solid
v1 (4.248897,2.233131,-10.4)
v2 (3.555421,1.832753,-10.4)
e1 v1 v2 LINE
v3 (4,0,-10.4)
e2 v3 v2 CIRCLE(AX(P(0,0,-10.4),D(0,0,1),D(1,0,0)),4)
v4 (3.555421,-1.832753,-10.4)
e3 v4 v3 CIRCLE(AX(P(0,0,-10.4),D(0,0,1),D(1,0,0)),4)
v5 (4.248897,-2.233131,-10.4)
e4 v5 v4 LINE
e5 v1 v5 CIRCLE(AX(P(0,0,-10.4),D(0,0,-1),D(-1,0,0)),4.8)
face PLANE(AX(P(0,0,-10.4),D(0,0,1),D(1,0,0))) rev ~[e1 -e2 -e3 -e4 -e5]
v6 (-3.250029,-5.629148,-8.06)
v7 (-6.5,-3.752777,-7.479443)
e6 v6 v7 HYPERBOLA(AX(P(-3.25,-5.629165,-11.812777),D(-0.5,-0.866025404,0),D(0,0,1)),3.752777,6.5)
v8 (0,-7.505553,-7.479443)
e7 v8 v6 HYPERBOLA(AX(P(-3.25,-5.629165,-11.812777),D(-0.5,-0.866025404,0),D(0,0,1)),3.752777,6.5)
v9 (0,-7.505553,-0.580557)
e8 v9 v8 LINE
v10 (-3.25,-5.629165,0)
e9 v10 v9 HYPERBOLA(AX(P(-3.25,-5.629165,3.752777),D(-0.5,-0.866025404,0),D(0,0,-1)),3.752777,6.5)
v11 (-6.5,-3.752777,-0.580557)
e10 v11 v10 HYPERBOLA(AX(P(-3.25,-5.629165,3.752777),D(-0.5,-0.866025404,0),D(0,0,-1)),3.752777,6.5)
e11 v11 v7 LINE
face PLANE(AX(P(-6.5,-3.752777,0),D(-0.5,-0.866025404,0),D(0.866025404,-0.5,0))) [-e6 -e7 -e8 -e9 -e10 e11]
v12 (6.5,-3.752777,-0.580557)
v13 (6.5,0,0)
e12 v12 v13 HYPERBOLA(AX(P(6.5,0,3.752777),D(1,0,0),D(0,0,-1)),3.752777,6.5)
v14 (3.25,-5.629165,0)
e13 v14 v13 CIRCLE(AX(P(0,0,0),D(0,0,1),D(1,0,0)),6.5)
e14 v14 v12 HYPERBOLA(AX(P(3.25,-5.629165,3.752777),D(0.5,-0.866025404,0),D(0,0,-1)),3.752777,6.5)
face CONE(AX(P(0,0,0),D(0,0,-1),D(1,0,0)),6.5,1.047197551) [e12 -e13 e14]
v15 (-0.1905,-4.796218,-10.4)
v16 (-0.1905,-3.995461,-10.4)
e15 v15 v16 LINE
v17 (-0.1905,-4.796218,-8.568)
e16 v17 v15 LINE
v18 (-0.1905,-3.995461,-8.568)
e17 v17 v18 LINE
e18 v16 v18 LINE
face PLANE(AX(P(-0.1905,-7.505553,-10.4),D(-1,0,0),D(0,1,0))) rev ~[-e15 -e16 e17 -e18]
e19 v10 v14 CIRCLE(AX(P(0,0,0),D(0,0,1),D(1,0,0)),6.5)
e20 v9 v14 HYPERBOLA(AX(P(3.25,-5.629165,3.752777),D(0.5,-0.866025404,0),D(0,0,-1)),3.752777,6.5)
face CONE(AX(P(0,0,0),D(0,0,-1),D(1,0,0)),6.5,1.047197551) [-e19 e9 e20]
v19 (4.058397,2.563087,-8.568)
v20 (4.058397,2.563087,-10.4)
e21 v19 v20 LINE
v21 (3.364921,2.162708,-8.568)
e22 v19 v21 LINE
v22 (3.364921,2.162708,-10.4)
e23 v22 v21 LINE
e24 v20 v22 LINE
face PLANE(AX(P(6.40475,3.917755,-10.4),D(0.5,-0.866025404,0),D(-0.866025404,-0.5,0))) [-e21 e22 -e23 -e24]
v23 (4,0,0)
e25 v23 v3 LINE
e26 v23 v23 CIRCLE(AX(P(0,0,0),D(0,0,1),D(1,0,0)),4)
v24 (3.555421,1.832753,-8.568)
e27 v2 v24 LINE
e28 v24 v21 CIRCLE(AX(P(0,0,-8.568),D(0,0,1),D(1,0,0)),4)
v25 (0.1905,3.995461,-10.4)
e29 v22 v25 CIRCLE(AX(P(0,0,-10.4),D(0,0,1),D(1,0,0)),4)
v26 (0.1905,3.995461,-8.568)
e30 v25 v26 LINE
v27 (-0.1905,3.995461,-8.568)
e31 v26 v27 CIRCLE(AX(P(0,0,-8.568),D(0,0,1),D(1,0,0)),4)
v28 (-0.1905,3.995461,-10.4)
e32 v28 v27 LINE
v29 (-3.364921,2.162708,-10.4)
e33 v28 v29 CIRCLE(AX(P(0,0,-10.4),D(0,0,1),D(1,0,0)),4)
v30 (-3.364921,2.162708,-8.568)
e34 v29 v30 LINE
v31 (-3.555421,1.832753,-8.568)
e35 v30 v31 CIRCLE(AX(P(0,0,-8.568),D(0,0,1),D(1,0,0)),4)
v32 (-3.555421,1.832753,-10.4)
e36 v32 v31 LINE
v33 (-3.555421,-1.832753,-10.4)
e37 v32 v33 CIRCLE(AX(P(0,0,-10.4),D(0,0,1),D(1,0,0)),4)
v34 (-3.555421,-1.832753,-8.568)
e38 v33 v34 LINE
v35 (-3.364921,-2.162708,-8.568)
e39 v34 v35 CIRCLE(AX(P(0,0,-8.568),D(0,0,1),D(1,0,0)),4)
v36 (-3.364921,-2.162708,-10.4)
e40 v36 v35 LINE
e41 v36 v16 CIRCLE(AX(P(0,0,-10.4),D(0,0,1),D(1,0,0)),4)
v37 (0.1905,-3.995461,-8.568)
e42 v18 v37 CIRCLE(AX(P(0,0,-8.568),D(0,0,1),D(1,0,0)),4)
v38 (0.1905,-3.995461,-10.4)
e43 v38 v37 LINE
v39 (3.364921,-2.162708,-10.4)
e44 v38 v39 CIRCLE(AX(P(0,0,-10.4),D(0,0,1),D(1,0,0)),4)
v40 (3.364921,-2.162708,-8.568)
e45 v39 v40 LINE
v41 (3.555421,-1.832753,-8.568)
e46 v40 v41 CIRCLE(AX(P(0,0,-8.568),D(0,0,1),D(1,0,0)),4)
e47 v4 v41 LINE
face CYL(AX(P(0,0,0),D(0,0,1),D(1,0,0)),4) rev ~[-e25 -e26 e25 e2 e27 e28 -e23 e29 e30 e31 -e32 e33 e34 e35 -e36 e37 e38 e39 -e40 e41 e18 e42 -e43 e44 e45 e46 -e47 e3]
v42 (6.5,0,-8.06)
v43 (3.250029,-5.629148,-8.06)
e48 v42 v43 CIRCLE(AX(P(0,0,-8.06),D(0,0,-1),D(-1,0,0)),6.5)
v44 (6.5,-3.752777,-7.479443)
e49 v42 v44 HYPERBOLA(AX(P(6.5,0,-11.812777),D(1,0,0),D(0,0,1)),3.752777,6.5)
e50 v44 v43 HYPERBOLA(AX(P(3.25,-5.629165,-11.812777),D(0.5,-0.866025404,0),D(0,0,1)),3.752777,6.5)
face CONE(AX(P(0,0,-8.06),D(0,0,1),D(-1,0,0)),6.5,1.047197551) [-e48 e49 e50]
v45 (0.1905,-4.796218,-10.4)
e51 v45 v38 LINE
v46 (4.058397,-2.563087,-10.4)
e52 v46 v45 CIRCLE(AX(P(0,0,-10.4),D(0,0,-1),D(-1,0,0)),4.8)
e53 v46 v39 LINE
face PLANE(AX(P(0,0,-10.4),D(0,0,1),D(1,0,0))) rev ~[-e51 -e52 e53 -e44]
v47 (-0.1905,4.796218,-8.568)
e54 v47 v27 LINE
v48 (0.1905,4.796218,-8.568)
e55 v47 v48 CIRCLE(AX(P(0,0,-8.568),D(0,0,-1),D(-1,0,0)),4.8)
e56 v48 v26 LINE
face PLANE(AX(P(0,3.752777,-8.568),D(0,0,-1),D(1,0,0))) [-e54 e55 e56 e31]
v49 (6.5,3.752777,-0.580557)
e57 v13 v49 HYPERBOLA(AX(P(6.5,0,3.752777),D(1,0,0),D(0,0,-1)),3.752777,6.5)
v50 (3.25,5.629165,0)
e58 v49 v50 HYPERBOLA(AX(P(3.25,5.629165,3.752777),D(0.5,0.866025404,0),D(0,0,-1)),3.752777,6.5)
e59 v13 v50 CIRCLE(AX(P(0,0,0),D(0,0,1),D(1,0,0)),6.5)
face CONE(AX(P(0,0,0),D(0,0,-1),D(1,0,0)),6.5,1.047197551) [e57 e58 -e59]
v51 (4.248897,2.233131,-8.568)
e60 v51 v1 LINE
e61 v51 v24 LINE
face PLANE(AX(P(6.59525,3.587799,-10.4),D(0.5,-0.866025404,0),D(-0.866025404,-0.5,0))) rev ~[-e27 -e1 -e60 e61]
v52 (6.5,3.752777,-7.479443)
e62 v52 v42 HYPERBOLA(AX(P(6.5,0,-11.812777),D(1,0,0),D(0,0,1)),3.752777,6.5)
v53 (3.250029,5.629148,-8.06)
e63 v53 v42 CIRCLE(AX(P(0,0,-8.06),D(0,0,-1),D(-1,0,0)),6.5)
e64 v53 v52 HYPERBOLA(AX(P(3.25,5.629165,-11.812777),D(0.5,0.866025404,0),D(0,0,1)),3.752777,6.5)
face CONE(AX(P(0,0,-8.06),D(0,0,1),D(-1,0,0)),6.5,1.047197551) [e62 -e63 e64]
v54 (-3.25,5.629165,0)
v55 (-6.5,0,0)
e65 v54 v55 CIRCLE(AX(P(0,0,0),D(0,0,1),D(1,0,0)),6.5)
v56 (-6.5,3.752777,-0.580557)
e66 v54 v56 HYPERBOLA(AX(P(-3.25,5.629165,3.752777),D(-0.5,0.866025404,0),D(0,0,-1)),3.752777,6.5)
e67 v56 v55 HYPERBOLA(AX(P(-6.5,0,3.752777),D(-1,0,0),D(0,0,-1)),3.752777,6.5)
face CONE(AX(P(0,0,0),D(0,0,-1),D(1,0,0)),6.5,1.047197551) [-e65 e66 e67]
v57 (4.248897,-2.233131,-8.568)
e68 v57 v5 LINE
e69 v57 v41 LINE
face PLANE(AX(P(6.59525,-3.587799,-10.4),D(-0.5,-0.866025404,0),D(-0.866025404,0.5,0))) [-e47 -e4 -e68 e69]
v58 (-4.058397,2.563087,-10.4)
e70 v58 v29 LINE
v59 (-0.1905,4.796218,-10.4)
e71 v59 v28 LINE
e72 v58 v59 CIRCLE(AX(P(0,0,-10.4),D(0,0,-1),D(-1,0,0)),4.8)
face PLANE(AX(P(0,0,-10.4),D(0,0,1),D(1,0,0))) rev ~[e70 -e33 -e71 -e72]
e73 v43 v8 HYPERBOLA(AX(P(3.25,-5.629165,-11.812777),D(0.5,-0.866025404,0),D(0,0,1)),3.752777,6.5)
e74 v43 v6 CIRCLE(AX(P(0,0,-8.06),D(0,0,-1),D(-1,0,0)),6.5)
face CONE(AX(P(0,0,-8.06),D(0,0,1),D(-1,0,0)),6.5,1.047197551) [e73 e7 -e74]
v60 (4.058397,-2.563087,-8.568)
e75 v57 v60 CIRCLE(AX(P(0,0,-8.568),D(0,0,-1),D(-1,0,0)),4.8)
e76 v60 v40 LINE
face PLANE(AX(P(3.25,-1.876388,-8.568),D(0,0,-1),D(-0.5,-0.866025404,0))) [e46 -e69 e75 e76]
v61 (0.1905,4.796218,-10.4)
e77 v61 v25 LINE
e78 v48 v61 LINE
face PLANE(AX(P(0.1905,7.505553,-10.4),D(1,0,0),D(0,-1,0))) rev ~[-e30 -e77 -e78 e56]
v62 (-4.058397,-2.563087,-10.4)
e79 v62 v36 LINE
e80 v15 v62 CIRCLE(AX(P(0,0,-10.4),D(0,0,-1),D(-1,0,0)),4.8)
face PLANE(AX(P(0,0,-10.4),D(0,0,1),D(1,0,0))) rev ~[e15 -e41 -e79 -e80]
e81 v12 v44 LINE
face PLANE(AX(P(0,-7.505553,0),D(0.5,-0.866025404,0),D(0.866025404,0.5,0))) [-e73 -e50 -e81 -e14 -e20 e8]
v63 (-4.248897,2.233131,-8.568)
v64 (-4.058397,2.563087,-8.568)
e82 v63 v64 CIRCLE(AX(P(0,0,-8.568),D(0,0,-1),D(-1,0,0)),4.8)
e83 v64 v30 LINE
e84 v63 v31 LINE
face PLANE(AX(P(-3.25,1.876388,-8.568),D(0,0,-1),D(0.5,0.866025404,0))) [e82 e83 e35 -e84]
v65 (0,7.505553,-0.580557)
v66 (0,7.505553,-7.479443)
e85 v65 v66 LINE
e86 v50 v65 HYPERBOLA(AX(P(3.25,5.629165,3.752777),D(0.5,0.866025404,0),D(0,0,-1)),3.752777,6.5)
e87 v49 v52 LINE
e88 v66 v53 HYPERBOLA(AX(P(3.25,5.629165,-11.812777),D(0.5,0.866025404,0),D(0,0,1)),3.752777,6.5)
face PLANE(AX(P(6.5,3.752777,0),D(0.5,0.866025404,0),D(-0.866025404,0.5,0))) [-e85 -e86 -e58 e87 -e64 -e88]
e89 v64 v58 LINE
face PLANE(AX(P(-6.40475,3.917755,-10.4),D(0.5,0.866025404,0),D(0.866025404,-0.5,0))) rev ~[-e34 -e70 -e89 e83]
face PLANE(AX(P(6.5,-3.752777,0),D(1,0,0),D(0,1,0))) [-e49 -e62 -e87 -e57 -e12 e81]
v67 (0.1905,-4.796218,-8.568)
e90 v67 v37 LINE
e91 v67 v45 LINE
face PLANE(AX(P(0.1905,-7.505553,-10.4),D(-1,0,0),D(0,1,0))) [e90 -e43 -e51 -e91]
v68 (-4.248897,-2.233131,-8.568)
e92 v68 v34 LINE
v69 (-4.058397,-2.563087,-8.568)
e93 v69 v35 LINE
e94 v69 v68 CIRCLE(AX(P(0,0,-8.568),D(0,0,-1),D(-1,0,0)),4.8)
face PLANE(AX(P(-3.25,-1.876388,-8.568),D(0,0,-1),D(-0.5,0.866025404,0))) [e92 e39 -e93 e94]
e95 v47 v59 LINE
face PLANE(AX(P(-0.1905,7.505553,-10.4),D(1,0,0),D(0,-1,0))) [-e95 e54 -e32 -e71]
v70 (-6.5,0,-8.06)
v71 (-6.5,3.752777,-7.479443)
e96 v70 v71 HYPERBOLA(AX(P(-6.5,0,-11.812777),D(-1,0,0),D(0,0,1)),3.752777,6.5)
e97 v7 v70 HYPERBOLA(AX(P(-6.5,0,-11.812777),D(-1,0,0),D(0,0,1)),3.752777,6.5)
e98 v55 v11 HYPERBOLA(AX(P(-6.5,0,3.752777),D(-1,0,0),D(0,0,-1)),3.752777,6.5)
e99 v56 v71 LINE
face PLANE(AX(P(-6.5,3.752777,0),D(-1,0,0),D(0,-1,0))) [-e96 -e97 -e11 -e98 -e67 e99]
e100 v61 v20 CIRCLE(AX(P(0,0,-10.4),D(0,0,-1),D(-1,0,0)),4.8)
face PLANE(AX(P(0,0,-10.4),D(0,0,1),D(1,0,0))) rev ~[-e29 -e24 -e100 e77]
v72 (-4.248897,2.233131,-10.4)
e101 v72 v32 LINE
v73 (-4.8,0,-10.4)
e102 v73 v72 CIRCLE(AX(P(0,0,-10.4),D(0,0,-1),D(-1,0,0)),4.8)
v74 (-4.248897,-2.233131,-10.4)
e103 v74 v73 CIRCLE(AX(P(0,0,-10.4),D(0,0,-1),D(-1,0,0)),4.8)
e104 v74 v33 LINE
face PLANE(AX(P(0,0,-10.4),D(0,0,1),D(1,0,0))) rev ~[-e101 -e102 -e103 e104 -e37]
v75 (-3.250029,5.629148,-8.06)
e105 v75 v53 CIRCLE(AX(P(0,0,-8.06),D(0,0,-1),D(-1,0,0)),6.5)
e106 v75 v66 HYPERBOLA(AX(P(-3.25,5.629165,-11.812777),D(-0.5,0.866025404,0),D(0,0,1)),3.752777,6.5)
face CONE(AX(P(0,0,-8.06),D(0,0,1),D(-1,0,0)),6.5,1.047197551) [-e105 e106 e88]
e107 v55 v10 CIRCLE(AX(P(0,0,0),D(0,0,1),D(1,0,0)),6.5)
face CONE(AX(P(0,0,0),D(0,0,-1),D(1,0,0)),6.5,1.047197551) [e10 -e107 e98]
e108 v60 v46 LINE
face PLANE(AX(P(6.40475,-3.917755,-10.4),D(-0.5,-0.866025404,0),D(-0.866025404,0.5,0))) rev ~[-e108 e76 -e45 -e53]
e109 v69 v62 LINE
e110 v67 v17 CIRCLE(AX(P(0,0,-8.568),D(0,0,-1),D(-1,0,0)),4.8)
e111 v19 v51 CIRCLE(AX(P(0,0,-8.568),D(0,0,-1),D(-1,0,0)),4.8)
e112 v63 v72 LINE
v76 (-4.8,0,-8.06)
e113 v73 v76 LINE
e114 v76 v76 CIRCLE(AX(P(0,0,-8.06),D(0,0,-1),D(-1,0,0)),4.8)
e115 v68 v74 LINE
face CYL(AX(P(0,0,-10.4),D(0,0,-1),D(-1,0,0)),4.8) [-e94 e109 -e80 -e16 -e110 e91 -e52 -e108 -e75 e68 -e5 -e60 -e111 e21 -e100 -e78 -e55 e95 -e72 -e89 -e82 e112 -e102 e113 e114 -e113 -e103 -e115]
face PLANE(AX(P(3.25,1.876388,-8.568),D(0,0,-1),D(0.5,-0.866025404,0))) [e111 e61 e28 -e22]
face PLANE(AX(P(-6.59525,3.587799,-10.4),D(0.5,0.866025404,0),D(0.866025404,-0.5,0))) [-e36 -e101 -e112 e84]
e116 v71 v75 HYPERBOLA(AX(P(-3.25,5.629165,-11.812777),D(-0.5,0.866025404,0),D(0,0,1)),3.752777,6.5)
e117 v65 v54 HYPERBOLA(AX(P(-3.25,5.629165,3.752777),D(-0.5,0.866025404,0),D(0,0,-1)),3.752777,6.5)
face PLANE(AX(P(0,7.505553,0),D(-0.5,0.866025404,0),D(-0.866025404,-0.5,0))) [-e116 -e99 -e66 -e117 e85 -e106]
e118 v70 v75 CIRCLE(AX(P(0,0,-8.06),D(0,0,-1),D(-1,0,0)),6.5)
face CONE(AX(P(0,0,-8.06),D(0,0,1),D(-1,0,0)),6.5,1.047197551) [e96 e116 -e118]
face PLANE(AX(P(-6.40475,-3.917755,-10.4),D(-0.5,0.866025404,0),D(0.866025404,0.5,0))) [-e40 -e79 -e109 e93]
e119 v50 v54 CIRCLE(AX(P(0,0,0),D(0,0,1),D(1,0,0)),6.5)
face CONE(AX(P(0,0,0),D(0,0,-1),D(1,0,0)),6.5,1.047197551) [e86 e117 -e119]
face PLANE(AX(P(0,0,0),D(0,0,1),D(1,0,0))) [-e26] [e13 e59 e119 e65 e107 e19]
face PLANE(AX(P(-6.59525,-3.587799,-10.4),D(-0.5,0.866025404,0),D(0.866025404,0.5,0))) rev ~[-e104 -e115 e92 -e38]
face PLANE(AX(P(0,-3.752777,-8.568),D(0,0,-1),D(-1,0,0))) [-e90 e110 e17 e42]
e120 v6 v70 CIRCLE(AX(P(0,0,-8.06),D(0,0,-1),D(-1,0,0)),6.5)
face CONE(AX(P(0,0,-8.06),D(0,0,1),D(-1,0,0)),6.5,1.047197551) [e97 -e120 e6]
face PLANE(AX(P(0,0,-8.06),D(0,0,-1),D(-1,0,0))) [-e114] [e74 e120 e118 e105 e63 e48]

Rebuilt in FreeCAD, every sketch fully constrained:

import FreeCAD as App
import Part
import Sketcher
from FreeCAD import Vector
Q = App.Units.Quantity


def faces_at(feature, points):
    """Names of the faces that lie closest to the given points."""
    faces = feature.Shape.Faces
    near = lambda p: min(range(len(faces)), key=lambda i: faces[i].distToShape(Part.Vertex(*p))[0])
    return sorted({f"Face{near(p) + 1}" for p in points})


def add_polygon(sketch, points):
    """Adds a closed chain of lines whose ends are joined by coincident constraints."""
    first, n = sketch.GeometryCount, len(points)
    for a, b in zip(points, points[1:] + points[:1]):
        sketch.addGeometry(Part.LineSegment(App.Vector(*a, 0), App.Vector(*b, 0)), False)
    for i in range(n):
        sketch.addConstraint(Sketcher.Constraint("Coincident", first + i, 2, first + (i + 1) % n, 1))

doc = App.newDocument("Part")
body = doc.addObject("PartDesign::Body", "Body")

# Sketch on XY plane
sketch1 = body.newObject("Sketcher::SketchObject", "Sketch")
sketch1.AttachmentSupport = (doc.getObject("XY_Plane"), [""])
sketch1.MapMode = "FlatFace"
add_polygon(sketch1, [(0, 8), (-6, 4), (-6, -4), (0, -8), (6, -4), (6, 4)])  # lines 0-5
sketch1.addConstraint(Sketcher.Constraint("Vertical", 1))
sketch1.addConstraint(Sketcher.Constraint("Vertical", 4))
sketch1.addConstraint(Sketcher.Constraint("Symmetric", 0, 2, 3, 2, -1, 1))
sketch1.addConstraint(Sketcher.Constraint("Symmetric", 2, 2, 5, 2, -1, 1))
sketch1.addConstraint(Sketcher.Constraint("PointOnObject", 2, 2, -2))
sketch1.addConstraint(Sketcher.Constraint("Parallel", 2, 5))
sketch1.addConstraint(Sketcher.Constraint("Horizontal", 1, 2, 3, 2))
sketch1.addConstraint(Sketcher.Constraint("Angle", 0, Q("-150 deg")))
sketch1.addConstraint(Sketcher.Constraint("DistanceX", 1, 2, 3, 2, Q("13 mm")))
sketch1.addConstraint(Sketcher.Constraint("DistanceY", 1, 2, 1, 1, Q("7.505554 mm")))
pad1 = body.newObject("PartDesign::Pad", "Pad")
pad1.Profile = sketch1
pad1.Length = 10.4
pad1.Reversed = True
body2 = doc.addObject("PartDesign::Body", "Body001")

# Sketch on XY plane
sketch2 = body2.newObject("Sketcher::SketchObject", "Sketch001")
sketch2.AttachmentSupport = (doc.getObject("XY_Plane001"), [""])
sketch2.MapMode = "FlatFace"
add_polygon(sketch2, [(-36, 37), (-36, -37), (36, -37), (36, 37)])  # lines 0-3
sketch2.addGeometry(Part.Circle(Vector(0, 0, 0), Vector(0, 0, 1), 6), False)  # 4
sketch2.addConstraint(Sketcher.Constraint("Vertical", 0))
sketch2.addConstraint(Sketcher.Constraint("Horizontal", 1))
sketch2.addConstraint(Sketcher.Constraint("Vertical", 2))
sketch2.addConstraint(Sketcher.Constraint("Horizontal", 3))
sketch2.addConstraint(Sketcher.Constraint("Coincident", 4, 3, -1, 1))
sketch2.addConstraint(Sketcher.Constraint("Symmetric", 0, 2, 2, 2, -1, 1))
sketch2.addConstraint(Sketcher.Constraint("Diameter", 4, Q("13 mm")))
sketch2.addConstraint(Sketcher.Constraint("DistanceX", 1, 1, 1, 2, Q("72.756 mm")))
sketch2.addConstraint(Sketcher.Constraint("DistanceY", 0, 2, 0, 1, Q("74.768 mm")))
pad2 = body2.newObject("PartDesign::Pad", "Pad001")
pad2.Profile = sketch2
pad2.Length = 15.378572
pad2.Reversed = True
doc.recompute()

draft = body2.newObject("PartDesign::Draft", "Draft")
draft.Base = (pad2, faces_at(pad2, [
    (0, -37.384, -7.689),
    (36.378, 0, -7.689),
    (0, 37.384, -7.689),
    (-36.378, 0, -7.689),
    (-6.5, 0, -7.689),
]))
draft.NeutralPlane = (doc.getObject("XY_Plane001"), [""])
draft.Angle = 60
draft.Reversed = True
doc.recompute()

boolean = body.newObject("PartDesign::Boolean", "Boolean")
boolean.Type = "Cut"
boolean.addObjects([body2])

# Sketch on XY plane
sketch3 = body.newObject("Sketcher::SketchObject", "Sketch002")
sketch3.AttachmentSupport = (doc.getObject("XY_Plane"), [""])
sketch3.MapMode = "FlatFace"
sketch3.addGeometry(Part.Circle(Vector(0, 0, 0), Vector(0, 0, 1), 4), False)
sketch3.addConstraint(Sketcher.Constraint("Coincident", 0, 3, -1, 1))
sketch3.addConstraint(Sketcher.Constraint("Diameter", 0, Q("8 mm")))
pocket1 = body.newObject("PartDesign::Pocket", "Pocket")
pocket1.Profile = sketch3
pocket1.Type = "ThroughAll"

# Sketch on XY plane
sketch4 = body.newObject("Sketcher::SketchObject", "Sketch003")
sketch4.AttachmentSupport = (doc.getObject("XY_Plane"), [""])
sketch4.MapMode = "FlatFace"
sketch4.AttachmentOffset = App.Placement(Vector(0, 0, -10.4), App.Rotation())
add_polygon(sketch4, [(9.7, 10.7), (9.7, -10.7), (-9.7, -10.7), (-9.7, 10.7)])  # lines 0-3
sketch4.addGeometry(Part.Circle(Vector(0, 0, 0), Vector(0, 0, 1), 4.8), False)  # 4
sketch4.addConstraint(Sketcher.Constraint("Vertical", 0))
sketch4.addConstraint(Sketcher.Constraint("Horizontal", 1))
sketch4.addConstraint(Sketcher.Constraint("Vertical", 2))
sketch4.addConstraint(Sketcher.Constraint("Horizontal", 3))
sketch4.addConstraint(Sketcher.Constraint("Coincident", 4, 3, -1, 1))
sketch4.addConstraint(Sketcher.Constraint("Symmetric", 0, 2, 2, 2, -1, 1))
sketch4.addConstraint(Sketcher.Constraint("Diameter", 4, Q("9.6 mm")))
sketch4.addConstraint(Sketcher.Constraint("DistanceX", 1, 2, 1, 1, Q("19.484 mm")))
sketch4.addConstraint(Sketcher.Constraint("DistanceY", 0, 2, 0, 1, Q("21.496 mm")))
pocket2 = body.newObject("PartDesign::Pocket", "Pocket001")
pocket2.Profile = sketch4
pocket2.Length = 2.34
pocket2.Reversed = True

# Sketch on XY plane
sketch5 = body.newObject("Sketcher::SketchObject", "Sketch004")
sketch5.AttachmentSupport = (doc.getObject("XY_Plane"), [""])
sketch5.MapMode = "FlatFace"
sketch5.AttachmentOffset = App.Placement(Vector(0, 0, -10.4), App.Rotation())
add_polygon(sketch5, [(0.19, 0), (0.19, -7.51), (-0.19, -7.51), (-0.19, 0)])  # lines 0-3
sketch5.addConstraint(Sketcher.Constraint("Vertical", 0))
sketch5.addConstraint(Sketcher.Constraint("Horizontal", 1))
sketch5.addConstraint(Sketcher.Constraint("Vertical", 2))
sketch5.addConstraint(Sketcher.Constraint("Horizontal", 3))
sketch5.addConstraint(Sketcher.Constraint("Symmetric", 2, 2, 3, 2, -1, 1))
sketch5.addConstraint(Sketcher.Constraint("DistanceX", 1, 2, 1, 1, Q("0.381 mm")))
sketch5.addConstraint(Sketcher.Constraint("DistanceY", 0, 2, 0, 1, Q("7.505553 mm")))
pocket3 = body.newObject("PartDesign::Pocket", "Pocket002")
pocket3.Profile = sketch5
pocket3.Length = 1.832
pocket3.Reversed = True
doc.recompute()

polarpattern = body.newObject("PartDesign::PolarPattern", "PolarPattern")
polarpattern.Originals = [pocket3]
polarpattern.Axis = (doc.getObject("Z_Axis"), [""])
polarpattern.Angle = 360
polarpattern.Occurrences = 6
body.Tip = polarpattern
body3 = doc.addObject("PartDesign::Body", "Body002")

# Sketch on XY plane
sketch6 = body3.newObject("Sketcher::SketchObject", "Sketch005")
sketch6.AttachmentSupport = (doc.getObject("XY_Plane002"), [""])
sketch6.MapMode = "FlatFace"
sketch6.AttachmentOffset = App.Placement(Vector(0, 0, -8.06), App.Rotation())
add_polygon(sketch6, [(34, 35), (34, -35), (-34, -35), (-34, 35)])  # lines 0-3
sketch6.addGeometry(Part.Circle(Vector(0, 0, 0), Vector(0, 0, 1), 6), False)  # 4
sketch6.addConstraint(Sketcher.Constraint("Vertical", 0))
sketch6.addConstraint(Sketcher.Constraint("Horizontal", 1))
sketch6.addConstraint(Sketcher.Constraint("Vertical", 2))
sketch6.addConstraint(Sketcher.Constraint("Horizontal", 3))
sketch6.addConstraint(Sketcher.Constraint("Coincident", 4, 3, -1, 1))
sketch6.addConstraint(Sketcher.Constraint("Symmetric", 0, 2, 2, 2, -1, 1))
sketch6.addConstraint(Sketcher.Constraint("Diameter", 4, Q("13 mm")))
sketch6.addConstraint(Sketcher.Constraint("DistanceY", 0, 2, 0, 1, Q("69.26 mm")))
sketch6.addConstraint(Sketcher.Constraint("DistanceX", 1, 2, 1, 1, Q("67.248 mm")))
pad3 = body3.newObject("PartDesign::Pad", "Pad002")
pad3.Profile = sketch6
pad3.Length = 13.788547
doc.recompute()

datumplane = body3.newObject("PartDesign::Plane", "DatumPlane")
datumplane.AttachmentSupport = (doc.getObject("XY_Plane002"), [""])
datumplane.MapMode = "FlatFace"
datumplane.AttachmentOffset = App.Placement(Vector(0, 0, -8.06), App.Rotation())
draft2 = body3.newObject("PartDesign::Draft", "Draft001")
draft2.Base = (pad3, faces_at(pad3, [
    (0, -34.63, -1.166),
    (-33.624, 0, -1.166),
    (0, 34.63, -1.166),
    (33.624, 0, -1.166),
    (6.5, 0, -1.166),
]))
draft2.NeutralPlane = (datumplane, [""])
draft2.Angle = 60
draft2.Reversed = False
doc.recompute()

boolean2 = body.newObject("PartDesign::Boolean", "Boolean001")
boolean2.Type = "Cut"
boolean2.addObjects([body3])

doc.recompute()
